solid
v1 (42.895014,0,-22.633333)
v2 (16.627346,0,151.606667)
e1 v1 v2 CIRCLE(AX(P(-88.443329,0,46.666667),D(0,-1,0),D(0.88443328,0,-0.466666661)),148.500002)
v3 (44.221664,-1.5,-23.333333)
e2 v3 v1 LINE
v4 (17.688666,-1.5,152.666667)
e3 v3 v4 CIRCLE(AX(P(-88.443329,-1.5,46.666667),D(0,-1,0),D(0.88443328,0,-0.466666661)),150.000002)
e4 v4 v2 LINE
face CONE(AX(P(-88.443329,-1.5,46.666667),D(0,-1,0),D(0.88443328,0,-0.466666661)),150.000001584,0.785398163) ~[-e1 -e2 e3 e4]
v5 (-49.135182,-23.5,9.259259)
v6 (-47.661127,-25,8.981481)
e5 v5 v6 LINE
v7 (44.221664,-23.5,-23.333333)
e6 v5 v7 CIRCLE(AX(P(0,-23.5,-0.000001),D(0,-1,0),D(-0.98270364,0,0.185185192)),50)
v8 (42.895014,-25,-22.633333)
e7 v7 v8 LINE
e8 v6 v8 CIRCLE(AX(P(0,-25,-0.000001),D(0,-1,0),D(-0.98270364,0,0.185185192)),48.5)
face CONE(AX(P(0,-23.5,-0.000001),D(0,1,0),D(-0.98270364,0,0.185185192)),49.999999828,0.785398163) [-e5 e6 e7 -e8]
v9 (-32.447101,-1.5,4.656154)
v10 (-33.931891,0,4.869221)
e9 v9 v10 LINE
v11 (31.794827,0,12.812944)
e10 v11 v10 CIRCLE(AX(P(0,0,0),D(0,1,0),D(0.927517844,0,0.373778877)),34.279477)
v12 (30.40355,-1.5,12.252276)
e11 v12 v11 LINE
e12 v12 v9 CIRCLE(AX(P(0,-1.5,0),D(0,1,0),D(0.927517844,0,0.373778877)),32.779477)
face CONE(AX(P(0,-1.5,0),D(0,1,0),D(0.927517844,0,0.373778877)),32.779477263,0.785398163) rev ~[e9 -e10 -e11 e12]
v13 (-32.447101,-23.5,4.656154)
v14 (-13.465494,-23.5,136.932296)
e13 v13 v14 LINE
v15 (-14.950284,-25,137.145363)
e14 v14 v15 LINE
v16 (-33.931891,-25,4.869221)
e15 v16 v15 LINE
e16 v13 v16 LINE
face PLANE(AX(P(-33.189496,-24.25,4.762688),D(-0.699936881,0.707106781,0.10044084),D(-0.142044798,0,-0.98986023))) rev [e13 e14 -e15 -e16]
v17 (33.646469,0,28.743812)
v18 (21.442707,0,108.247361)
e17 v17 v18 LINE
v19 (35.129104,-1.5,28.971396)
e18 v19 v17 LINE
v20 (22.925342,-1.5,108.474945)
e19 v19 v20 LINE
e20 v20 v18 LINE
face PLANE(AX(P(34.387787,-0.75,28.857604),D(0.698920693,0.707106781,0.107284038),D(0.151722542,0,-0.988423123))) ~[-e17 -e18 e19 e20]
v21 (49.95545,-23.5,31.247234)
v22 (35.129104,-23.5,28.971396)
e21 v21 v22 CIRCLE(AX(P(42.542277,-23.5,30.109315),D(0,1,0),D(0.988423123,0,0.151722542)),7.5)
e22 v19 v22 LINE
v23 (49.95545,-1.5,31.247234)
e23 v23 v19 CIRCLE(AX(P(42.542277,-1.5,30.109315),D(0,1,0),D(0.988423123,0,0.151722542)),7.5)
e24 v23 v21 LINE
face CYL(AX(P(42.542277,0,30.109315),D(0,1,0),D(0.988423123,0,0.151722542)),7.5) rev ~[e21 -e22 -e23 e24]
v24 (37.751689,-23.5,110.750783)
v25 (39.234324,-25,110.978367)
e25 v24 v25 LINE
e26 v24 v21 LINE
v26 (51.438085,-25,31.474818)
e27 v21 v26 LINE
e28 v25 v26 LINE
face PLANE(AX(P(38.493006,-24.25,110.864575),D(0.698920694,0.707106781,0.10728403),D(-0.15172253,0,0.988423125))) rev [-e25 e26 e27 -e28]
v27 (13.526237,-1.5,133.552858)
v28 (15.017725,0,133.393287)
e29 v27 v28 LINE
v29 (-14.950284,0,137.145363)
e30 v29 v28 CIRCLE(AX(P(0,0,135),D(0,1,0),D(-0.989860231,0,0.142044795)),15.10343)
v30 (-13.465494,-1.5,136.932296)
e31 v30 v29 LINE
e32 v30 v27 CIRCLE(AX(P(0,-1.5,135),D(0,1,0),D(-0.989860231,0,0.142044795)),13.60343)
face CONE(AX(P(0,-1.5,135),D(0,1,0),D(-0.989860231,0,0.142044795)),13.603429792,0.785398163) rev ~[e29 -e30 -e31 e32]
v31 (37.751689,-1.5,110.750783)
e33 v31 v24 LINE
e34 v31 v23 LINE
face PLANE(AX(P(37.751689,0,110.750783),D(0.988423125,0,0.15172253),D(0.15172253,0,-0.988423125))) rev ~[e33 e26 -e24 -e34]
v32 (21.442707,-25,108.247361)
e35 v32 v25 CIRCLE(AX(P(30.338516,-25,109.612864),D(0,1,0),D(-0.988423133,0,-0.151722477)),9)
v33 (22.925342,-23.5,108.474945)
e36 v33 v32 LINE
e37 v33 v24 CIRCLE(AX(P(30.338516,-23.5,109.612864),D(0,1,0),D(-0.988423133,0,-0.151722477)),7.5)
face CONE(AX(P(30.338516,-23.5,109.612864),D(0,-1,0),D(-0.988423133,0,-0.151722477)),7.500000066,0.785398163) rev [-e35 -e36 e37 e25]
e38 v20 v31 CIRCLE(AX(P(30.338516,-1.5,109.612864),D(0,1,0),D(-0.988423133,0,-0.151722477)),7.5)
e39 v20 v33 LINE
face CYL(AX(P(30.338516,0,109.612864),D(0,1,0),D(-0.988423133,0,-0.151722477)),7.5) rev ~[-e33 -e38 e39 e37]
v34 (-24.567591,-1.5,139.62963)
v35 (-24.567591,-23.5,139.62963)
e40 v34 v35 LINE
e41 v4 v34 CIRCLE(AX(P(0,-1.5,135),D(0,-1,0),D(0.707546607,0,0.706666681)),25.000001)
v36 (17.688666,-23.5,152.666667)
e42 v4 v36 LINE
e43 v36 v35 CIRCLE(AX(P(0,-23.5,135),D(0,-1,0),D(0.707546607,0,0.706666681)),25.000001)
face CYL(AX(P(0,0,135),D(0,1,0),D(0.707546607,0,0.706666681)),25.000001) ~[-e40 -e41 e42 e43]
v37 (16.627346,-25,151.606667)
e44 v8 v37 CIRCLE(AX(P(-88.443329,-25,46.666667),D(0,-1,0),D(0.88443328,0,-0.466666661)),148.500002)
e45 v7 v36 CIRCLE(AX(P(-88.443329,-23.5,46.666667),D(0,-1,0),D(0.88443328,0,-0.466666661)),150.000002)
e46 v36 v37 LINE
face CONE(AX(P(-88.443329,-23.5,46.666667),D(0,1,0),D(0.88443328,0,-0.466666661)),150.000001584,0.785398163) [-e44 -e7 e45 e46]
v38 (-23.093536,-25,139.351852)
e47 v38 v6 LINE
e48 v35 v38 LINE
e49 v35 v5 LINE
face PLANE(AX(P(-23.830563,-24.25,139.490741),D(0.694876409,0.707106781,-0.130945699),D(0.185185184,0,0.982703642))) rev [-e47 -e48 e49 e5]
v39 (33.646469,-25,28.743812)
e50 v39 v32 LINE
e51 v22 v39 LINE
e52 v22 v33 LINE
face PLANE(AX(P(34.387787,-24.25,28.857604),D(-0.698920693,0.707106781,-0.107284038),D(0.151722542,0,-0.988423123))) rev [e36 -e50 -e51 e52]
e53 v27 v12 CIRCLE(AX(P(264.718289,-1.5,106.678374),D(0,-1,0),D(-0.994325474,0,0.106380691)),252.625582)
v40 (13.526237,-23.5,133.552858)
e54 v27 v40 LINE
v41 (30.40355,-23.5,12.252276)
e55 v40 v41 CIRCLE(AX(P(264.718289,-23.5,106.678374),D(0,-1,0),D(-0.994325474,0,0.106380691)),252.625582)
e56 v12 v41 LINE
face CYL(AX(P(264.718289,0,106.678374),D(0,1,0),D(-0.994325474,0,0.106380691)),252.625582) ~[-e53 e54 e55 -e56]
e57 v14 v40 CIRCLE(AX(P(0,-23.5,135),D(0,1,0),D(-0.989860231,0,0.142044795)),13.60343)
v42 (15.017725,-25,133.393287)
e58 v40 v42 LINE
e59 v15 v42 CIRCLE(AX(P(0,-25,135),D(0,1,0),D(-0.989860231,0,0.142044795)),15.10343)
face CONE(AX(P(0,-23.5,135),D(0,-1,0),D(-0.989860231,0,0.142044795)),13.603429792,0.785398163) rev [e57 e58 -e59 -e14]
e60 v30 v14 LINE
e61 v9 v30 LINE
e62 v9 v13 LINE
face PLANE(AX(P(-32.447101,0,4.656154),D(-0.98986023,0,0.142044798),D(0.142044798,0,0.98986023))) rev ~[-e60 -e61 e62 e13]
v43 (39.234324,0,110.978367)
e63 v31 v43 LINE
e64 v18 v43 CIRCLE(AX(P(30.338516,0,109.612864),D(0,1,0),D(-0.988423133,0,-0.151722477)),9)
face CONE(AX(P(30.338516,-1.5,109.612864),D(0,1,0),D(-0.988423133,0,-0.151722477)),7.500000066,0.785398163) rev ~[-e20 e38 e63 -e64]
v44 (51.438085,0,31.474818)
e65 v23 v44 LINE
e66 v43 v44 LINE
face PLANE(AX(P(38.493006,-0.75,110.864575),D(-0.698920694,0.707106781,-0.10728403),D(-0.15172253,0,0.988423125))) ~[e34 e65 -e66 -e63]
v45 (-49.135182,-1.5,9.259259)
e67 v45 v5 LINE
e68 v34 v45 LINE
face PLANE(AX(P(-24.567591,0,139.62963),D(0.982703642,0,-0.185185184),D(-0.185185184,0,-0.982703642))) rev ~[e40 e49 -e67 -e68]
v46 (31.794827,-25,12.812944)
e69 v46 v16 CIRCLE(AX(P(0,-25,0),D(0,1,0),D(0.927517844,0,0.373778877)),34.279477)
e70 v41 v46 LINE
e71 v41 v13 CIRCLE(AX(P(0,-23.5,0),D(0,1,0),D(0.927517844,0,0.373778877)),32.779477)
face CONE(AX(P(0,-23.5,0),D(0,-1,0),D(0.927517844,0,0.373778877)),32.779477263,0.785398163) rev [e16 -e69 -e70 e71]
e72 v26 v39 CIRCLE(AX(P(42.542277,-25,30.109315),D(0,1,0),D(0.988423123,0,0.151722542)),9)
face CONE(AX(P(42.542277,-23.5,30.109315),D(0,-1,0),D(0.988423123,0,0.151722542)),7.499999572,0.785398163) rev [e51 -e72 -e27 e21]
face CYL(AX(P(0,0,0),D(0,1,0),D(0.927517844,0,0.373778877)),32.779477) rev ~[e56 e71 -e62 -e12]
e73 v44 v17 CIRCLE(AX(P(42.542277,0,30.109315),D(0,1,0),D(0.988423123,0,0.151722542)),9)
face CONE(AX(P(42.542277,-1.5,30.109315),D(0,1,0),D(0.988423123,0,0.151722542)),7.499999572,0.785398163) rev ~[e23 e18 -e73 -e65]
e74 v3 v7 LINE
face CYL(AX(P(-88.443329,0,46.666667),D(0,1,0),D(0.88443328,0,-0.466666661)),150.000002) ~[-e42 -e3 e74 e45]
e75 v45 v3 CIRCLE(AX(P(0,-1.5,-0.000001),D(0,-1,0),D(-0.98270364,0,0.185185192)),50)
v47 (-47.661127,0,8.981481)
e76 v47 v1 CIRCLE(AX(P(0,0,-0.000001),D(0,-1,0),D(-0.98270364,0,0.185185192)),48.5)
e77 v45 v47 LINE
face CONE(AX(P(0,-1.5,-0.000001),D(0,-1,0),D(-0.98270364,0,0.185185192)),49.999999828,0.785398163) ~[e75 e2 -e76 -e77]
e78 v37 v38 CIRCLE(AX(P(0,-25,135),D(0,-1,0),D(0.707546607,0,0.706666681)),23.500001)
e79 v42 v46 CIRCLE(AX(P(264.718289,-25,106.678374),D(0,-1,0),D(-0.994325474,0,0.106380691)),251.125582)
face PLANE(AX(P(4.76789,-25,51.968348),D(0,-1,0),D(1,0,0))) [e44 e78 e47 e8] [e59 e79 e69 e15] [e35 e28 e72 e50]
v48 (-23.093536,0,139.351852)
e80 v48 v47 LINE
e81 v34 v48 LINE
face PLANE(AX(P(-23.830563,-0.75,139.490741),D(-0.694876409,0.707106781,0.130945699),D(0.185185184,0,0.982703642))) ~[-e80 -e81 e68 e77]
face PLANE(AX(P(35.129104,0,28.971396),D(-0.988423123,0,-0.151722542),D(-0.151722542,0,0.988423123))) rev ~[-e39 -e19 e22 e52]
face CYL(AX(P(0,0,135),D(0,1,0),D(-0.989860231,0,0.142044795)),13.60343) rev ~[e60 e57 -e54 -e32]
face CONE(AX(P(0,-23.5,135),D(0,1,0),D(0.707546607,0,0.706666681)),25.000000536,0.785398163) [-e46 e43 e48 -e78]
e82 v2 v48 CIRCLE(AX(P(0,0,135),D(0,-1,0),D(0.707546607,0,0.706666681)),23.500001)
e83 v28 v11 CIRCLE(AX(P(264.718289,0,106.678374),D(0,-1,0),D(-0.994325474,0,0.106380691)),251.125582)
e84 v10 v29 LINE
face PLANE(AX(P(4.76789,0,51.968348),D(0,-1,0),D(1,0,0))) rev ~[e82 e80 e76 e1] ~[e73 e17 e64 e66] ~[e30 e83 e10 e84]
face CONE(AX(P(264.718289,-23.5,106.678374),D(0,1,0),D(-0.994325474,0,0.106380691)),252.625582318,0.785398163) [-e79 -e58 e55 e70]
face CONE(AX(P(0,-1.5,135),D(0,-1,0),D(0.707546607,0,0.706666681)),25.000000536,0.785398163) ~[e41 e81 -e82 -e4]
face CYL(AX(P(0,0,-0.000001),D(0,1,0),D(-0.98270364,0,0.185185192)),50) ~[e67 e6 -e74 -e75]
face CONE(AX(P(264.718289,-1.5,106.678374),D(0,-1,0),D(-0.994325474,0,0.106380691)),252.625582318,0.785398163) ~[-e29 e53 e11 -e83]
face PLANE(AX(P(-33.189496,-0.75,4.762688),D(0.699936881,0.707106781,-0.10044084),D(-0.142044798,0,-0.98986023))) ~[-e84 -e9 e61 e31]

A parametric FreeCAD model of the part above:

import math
import FreeCAD as App
import Part
import Sketcher

V = App.Vector
Q = App.Units.Quantity


def edges_at(feature, points):
    """Names of the edges that pass closest to the given points."""
    edges = feature.Shape.Edges
    near = lambda p: min(range(len(edges)), key=lambda i: edges[i].distToShape(Part.Vertex(*p))[0])
    return sorted({f"Edge{near(p) + 1}" for p in points})

doc = App.newDocument("Part")
params = doc.addObject("Spreadsheet::Sheet", "Params")
for row, (alias, value) in enumerate([
    ("sketch1_radius", "50 mm"),
    ("sketch1_radius2", "150.000002 mm"),
    ("sketch1_radius3", "25.000001 mm"),
    ("sketch1_radius4", "7.5 mm"),
    ("pad1_length", "25 mm"),
    ("chamfer_size", "1.5 mm"),
], start=1):
    params.set(f"A{row}", alias)
    params.set(f"B{row}", "=" + value)
    params.setAlias(f"B{row}", alias)

body = doc.addObject("PartDesign::Body", "Body")

sketch1 = body.newObject("Sketcher::SketchObject", "Sketch")
sketch1.AttachmentSupport = (doc.getObject("XZ_Plane"), [""])
sketch1.MapMode = "FlatFace"
sketch1.addGeometry([
    Part.LineSegment(V(-25, 140, 0), V(-49, 9, 0)),
    Part.ArcOfCircle(Part.Circle(V(0, 0, 0), V(0, 0, 1), 50), math.radians(169), math.radians(332)),
    Part.ArcOfCircle(Part.Circle(V(-88, 47, 0), V(0, 0, 1), 150), math.radians(-28), math.radians(45)),
    Part.ArcOfCircle(Part.Circle(V(0, 135, 0), V(0, 0, 1), 25), math.radians(45), math.radians(169)),
    Part.LineSegment(V(-32, 5, 0), V(-13, 137, 0)),
    Part.ArcOfCircle(Part.Circle(V(0, 135, 0), V(0, 0, 1), 14), math.radians(-6), math.radians(172)),
    Part.ArcOfCircle(Part.Circle(V(265, 107, 0), V(0, 0, 1), 253), math.radians(174), math.radians(202)),
    Part.ArcOfCircle(Part.Circle(V(0, 0, 0), V(0, 0, 1), 33), math.radians(172), math.radians(382)),
    Part.LineSegment(V(35, 29, 0), V(23, 108, 0)),
    Part.ArcOfCircle(Part.Circle(V(30, 110, 0), V(0, 0, 1), 8), math.radians(9), math.radians(189)),
    Part.LineSegment(V(38, 111, 0), V(50, 31, 0)),
    Part.ArcOfCircle(Part.Circle(V(43, 30, 0), V(0, 0, 1), 7), math.radians(-171), math.radians(9)),
], False)
sketch1.addConstraint([
    Sketcher.Constraint("Tangent", 0, 2, 1, 1),
    Sketcher.Constraint("Tangent", 1, 2, 2, 1),
    Sketcher.Constraint("Tangent", 2, 2, 3, 1),
    Sketcher.Constraint("Tangent", 3, 2, 0, 1),
    Sketcher.Constraint("Tangent", 4, 2, 5, 2),
    Sketcher.Constraint("Tangent", 5, 1, 6, 1),
    Sketcher.Constraint("Tangent", 6, 2, 7, 2),
    Sketcher.Constraint("Tangent", 7, 1, 4, 1),
    Sketcher.Constraint("Tangent", 8, 2, 9, 2),
    Sketcher.Constraint("Tangent", 9, 1, 10, 1),
    Sketcher.Constraint("Tangent", 10, 2, 11, 2),
    Sketcher.Constraint("Tangent", 11, 1, 8, 1),
    Sketcher.Constraint("Coincident", 1, 3, -1, 1),
    Sketcher.Constraint("Coincident", 7, 3, -1, 1),
    Sketcher.Constraint("Coincident", 5, 3, 3, 3),
    Sketcher.Constraint("Equal", 9, 11),
    Sketcher.Constraint("PointOnObject", 3, 3, -2),
    Sketcher.Constraint("Radius", 1, Q("50 mm")),
    Sketcher.Constraint("Radius", 2, Q("150.000002 mm")),
    Sketcher.Constraint("Radius", 3, Q("25.000001 mm")),
    Sketcher.Constraint("Radius", 9, Q("7.5 mm")),
    Sketcher.Constraint("DistanceY", -1, 1, 3, 3, Q("135 mm")),
    Sketcher.Constraint("Radius", 5, Q("13.60343 mm")),
    Sketcher.Constraint("Radius", 6, Q("252.625582 mm")),
    Sketcher.Constraint("Radius", 7, Q("32.779477 mm")),
    Sketcher.Constraint("DistanceX", 6, 2, 10, 2, Q("19.5519 mm")),
    Sketcher.Constraint("Distance", 8, Q("80.434732 mm")),
    Sketcher.Constraint("DistanceX", -1, 1, 9, 1, Q("37.751689 mm")),
    Sketcher.Constraint("DistanceY", 1, 2, 11, 3, Q("53.442648 mm")),
])
sketch1.setExpression("Constraints[17]", "Params.sketch1_radius")
sketch1.setExpression("Constraints[18]", "Params.sketch1_radius2")
sketch1.setExpression("Constraints[19]", "Params.sketch1_radius3")
sketch1.setExpression("Constraints[20]", "Params.sketch1_radius4")
pad1 = body.newObject("PartDesign::Pad", "Pad")
pad1.Profile = sketch1
pad1.setExpression("Length", "Params.pad1_length")
doc.recompute()

chamfer = body.newObject("PartDesign::Chamfer", "Chamfer")
chamfer.Base = (pad1, edges_at(pad1, [
    (59.881, -25, 69.027),
    (-7.37, -25, 158.889),
    (-36.851, -25, 74.444),
    (-16.48, -25, -47.206),
    (1.69, -25, 148.498),
    (14.503, -25, 71.864),
    (3.933, -25, -32.543),
    (-22.956, -25, 70.794),
    (29.027, -25, 68.723),
    (29.201, -25, 117.026),
    (43.854, -25, 70.999),
    (43.68, -25, 22.696),
    (59.881, 0, 69.027),
    (-7.37, 0, 158.889),
    (-36.851, 0, 74.444),
    (-16.48, 0, -47.206),
    (1.69, 0, 148.498),
    (14.503, 0, 71.864),
    (3.933, 0, -32.543),
    (-22.956, 0, 70.794),
    (29.027, 0, 68.723),
    (29.201, 0, 117.026),
    (43.854, 0, 70.999),
    (43.68, 0, 22.696),
]))
chamfer.setExpression("Size", "Params.chamfer_size")

doc.recompute()
